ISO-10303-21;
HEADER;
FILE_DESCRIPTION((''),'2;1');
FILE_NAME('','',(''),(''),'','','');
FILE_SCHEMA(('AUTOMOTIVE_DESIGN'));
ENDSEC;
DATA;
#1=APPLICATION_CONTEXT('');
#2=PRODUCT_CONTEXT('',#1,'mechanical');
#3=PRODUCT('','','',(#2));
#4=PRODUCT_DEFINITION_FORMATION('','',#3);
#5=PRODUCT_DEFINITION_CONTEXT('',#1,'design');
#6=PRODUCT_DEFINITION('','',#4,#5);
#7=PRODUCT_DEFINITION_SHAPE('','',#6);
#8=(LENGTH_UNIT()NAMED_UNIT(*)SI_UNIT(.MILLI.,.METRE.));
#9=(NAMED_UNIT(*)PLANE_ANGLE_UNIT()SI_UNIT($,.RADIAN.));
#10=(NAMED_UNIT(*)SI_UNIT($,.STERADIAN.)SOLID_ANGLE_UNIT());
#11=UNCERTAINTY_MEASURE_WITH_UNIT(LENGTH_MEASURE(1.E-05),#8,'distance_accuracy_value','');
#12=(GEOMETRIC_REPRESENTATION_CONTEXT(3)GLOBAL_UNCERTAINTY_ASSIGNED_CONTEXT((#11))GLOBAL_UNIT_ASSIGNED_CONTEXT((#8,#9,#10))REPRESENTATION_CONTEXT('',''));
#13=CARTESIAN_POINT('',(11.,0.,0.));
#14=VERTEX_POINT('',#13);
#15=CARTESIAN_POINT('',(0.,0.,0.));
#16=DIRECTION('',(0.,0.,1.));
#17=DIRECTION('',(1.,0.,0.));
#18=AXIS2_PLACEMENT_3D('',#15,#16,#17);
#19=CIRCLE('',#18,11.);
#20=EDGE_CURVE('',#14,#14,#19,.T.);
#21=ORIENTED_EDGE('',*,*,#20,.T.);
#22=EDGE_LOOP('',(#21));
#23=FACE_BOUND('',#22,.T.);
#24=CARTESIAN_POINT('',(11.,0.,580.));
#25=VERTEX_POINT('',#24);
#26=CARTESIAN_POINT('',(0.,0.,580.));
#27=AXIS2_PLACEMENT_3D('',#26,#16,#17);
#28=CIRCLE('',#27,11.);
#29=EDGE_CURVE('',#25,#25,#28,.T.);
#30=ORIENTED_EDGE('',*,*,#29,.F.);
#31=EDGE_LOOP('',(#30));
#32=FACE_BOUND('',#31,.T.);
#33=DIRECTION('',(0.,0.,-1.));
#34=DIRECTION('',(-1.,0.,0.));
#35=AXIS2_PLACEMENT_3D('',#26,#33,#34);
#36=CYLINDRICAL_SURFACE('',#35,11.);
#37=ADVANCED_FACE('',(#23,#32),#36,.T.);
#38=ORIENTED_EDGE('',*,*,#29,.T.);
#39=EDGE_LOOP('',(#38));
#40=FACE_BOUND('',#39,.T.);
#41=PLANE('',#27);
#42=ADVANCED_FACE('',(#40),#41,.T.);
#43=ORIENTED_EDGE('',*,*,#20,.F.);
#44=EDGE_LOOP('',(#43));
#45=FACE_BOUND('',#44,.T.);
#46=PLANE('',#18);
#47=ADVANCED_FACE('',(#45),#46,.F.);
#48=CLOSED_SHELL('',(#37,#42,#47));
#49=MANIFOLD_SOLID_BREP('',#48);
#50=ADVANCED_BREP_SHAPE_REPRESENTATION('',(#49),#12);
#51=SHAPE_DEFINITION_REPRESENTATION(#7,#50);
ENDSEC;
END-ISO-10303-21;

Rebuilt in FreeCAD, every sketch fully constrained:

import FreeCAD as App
import Part
import Sketcher

V = App.Vector
Q = App.Units.Quantity

doc = App.newDocument("Part")
params = doc.addObject("Spreadsheet::Sheet", "Params")
for row, (alias, value) in enumerate([
    ("sketch1_diameter", "22 mm"),
    ("pad1_length", "580 mm"),
], start=1):
    params.set(f"A{row}", alias)
    params.set(f"B{row}", "=" + value)
    params.setAlias(f"B{row}", alias)

body = doc.addObject("PartDesign::Body", "Body")

# Sketch on XY plane
sketch1 = body.newObject("Sketcher::SketchObject", "Sketch")
sketch1.AttachmentSupport = (doc.getObject("XY_Plane"), [""])
sketch1.MapMode = "FlatFace"
sketch1.addGeometry(Part.Circle(V(0, 0, 0), V(0, 0, 1), 11), False)
sketch1.addConstraint([
    Sketcher.Constraint("Coincident", 0, 3, -1, 1),
    Sketcher.Constraint("Diameter", 0, Q("22 mm")),
])
sketch1.setExpression("Constraints[1]", "Params.sketch1_diameter")
pad1 = body.newObject("PartDesign::Pad", "Pad")
pad1.Profile = sketch1
pad1.setExpression("Length", "Params.pad1_length")

doc.recompute()
